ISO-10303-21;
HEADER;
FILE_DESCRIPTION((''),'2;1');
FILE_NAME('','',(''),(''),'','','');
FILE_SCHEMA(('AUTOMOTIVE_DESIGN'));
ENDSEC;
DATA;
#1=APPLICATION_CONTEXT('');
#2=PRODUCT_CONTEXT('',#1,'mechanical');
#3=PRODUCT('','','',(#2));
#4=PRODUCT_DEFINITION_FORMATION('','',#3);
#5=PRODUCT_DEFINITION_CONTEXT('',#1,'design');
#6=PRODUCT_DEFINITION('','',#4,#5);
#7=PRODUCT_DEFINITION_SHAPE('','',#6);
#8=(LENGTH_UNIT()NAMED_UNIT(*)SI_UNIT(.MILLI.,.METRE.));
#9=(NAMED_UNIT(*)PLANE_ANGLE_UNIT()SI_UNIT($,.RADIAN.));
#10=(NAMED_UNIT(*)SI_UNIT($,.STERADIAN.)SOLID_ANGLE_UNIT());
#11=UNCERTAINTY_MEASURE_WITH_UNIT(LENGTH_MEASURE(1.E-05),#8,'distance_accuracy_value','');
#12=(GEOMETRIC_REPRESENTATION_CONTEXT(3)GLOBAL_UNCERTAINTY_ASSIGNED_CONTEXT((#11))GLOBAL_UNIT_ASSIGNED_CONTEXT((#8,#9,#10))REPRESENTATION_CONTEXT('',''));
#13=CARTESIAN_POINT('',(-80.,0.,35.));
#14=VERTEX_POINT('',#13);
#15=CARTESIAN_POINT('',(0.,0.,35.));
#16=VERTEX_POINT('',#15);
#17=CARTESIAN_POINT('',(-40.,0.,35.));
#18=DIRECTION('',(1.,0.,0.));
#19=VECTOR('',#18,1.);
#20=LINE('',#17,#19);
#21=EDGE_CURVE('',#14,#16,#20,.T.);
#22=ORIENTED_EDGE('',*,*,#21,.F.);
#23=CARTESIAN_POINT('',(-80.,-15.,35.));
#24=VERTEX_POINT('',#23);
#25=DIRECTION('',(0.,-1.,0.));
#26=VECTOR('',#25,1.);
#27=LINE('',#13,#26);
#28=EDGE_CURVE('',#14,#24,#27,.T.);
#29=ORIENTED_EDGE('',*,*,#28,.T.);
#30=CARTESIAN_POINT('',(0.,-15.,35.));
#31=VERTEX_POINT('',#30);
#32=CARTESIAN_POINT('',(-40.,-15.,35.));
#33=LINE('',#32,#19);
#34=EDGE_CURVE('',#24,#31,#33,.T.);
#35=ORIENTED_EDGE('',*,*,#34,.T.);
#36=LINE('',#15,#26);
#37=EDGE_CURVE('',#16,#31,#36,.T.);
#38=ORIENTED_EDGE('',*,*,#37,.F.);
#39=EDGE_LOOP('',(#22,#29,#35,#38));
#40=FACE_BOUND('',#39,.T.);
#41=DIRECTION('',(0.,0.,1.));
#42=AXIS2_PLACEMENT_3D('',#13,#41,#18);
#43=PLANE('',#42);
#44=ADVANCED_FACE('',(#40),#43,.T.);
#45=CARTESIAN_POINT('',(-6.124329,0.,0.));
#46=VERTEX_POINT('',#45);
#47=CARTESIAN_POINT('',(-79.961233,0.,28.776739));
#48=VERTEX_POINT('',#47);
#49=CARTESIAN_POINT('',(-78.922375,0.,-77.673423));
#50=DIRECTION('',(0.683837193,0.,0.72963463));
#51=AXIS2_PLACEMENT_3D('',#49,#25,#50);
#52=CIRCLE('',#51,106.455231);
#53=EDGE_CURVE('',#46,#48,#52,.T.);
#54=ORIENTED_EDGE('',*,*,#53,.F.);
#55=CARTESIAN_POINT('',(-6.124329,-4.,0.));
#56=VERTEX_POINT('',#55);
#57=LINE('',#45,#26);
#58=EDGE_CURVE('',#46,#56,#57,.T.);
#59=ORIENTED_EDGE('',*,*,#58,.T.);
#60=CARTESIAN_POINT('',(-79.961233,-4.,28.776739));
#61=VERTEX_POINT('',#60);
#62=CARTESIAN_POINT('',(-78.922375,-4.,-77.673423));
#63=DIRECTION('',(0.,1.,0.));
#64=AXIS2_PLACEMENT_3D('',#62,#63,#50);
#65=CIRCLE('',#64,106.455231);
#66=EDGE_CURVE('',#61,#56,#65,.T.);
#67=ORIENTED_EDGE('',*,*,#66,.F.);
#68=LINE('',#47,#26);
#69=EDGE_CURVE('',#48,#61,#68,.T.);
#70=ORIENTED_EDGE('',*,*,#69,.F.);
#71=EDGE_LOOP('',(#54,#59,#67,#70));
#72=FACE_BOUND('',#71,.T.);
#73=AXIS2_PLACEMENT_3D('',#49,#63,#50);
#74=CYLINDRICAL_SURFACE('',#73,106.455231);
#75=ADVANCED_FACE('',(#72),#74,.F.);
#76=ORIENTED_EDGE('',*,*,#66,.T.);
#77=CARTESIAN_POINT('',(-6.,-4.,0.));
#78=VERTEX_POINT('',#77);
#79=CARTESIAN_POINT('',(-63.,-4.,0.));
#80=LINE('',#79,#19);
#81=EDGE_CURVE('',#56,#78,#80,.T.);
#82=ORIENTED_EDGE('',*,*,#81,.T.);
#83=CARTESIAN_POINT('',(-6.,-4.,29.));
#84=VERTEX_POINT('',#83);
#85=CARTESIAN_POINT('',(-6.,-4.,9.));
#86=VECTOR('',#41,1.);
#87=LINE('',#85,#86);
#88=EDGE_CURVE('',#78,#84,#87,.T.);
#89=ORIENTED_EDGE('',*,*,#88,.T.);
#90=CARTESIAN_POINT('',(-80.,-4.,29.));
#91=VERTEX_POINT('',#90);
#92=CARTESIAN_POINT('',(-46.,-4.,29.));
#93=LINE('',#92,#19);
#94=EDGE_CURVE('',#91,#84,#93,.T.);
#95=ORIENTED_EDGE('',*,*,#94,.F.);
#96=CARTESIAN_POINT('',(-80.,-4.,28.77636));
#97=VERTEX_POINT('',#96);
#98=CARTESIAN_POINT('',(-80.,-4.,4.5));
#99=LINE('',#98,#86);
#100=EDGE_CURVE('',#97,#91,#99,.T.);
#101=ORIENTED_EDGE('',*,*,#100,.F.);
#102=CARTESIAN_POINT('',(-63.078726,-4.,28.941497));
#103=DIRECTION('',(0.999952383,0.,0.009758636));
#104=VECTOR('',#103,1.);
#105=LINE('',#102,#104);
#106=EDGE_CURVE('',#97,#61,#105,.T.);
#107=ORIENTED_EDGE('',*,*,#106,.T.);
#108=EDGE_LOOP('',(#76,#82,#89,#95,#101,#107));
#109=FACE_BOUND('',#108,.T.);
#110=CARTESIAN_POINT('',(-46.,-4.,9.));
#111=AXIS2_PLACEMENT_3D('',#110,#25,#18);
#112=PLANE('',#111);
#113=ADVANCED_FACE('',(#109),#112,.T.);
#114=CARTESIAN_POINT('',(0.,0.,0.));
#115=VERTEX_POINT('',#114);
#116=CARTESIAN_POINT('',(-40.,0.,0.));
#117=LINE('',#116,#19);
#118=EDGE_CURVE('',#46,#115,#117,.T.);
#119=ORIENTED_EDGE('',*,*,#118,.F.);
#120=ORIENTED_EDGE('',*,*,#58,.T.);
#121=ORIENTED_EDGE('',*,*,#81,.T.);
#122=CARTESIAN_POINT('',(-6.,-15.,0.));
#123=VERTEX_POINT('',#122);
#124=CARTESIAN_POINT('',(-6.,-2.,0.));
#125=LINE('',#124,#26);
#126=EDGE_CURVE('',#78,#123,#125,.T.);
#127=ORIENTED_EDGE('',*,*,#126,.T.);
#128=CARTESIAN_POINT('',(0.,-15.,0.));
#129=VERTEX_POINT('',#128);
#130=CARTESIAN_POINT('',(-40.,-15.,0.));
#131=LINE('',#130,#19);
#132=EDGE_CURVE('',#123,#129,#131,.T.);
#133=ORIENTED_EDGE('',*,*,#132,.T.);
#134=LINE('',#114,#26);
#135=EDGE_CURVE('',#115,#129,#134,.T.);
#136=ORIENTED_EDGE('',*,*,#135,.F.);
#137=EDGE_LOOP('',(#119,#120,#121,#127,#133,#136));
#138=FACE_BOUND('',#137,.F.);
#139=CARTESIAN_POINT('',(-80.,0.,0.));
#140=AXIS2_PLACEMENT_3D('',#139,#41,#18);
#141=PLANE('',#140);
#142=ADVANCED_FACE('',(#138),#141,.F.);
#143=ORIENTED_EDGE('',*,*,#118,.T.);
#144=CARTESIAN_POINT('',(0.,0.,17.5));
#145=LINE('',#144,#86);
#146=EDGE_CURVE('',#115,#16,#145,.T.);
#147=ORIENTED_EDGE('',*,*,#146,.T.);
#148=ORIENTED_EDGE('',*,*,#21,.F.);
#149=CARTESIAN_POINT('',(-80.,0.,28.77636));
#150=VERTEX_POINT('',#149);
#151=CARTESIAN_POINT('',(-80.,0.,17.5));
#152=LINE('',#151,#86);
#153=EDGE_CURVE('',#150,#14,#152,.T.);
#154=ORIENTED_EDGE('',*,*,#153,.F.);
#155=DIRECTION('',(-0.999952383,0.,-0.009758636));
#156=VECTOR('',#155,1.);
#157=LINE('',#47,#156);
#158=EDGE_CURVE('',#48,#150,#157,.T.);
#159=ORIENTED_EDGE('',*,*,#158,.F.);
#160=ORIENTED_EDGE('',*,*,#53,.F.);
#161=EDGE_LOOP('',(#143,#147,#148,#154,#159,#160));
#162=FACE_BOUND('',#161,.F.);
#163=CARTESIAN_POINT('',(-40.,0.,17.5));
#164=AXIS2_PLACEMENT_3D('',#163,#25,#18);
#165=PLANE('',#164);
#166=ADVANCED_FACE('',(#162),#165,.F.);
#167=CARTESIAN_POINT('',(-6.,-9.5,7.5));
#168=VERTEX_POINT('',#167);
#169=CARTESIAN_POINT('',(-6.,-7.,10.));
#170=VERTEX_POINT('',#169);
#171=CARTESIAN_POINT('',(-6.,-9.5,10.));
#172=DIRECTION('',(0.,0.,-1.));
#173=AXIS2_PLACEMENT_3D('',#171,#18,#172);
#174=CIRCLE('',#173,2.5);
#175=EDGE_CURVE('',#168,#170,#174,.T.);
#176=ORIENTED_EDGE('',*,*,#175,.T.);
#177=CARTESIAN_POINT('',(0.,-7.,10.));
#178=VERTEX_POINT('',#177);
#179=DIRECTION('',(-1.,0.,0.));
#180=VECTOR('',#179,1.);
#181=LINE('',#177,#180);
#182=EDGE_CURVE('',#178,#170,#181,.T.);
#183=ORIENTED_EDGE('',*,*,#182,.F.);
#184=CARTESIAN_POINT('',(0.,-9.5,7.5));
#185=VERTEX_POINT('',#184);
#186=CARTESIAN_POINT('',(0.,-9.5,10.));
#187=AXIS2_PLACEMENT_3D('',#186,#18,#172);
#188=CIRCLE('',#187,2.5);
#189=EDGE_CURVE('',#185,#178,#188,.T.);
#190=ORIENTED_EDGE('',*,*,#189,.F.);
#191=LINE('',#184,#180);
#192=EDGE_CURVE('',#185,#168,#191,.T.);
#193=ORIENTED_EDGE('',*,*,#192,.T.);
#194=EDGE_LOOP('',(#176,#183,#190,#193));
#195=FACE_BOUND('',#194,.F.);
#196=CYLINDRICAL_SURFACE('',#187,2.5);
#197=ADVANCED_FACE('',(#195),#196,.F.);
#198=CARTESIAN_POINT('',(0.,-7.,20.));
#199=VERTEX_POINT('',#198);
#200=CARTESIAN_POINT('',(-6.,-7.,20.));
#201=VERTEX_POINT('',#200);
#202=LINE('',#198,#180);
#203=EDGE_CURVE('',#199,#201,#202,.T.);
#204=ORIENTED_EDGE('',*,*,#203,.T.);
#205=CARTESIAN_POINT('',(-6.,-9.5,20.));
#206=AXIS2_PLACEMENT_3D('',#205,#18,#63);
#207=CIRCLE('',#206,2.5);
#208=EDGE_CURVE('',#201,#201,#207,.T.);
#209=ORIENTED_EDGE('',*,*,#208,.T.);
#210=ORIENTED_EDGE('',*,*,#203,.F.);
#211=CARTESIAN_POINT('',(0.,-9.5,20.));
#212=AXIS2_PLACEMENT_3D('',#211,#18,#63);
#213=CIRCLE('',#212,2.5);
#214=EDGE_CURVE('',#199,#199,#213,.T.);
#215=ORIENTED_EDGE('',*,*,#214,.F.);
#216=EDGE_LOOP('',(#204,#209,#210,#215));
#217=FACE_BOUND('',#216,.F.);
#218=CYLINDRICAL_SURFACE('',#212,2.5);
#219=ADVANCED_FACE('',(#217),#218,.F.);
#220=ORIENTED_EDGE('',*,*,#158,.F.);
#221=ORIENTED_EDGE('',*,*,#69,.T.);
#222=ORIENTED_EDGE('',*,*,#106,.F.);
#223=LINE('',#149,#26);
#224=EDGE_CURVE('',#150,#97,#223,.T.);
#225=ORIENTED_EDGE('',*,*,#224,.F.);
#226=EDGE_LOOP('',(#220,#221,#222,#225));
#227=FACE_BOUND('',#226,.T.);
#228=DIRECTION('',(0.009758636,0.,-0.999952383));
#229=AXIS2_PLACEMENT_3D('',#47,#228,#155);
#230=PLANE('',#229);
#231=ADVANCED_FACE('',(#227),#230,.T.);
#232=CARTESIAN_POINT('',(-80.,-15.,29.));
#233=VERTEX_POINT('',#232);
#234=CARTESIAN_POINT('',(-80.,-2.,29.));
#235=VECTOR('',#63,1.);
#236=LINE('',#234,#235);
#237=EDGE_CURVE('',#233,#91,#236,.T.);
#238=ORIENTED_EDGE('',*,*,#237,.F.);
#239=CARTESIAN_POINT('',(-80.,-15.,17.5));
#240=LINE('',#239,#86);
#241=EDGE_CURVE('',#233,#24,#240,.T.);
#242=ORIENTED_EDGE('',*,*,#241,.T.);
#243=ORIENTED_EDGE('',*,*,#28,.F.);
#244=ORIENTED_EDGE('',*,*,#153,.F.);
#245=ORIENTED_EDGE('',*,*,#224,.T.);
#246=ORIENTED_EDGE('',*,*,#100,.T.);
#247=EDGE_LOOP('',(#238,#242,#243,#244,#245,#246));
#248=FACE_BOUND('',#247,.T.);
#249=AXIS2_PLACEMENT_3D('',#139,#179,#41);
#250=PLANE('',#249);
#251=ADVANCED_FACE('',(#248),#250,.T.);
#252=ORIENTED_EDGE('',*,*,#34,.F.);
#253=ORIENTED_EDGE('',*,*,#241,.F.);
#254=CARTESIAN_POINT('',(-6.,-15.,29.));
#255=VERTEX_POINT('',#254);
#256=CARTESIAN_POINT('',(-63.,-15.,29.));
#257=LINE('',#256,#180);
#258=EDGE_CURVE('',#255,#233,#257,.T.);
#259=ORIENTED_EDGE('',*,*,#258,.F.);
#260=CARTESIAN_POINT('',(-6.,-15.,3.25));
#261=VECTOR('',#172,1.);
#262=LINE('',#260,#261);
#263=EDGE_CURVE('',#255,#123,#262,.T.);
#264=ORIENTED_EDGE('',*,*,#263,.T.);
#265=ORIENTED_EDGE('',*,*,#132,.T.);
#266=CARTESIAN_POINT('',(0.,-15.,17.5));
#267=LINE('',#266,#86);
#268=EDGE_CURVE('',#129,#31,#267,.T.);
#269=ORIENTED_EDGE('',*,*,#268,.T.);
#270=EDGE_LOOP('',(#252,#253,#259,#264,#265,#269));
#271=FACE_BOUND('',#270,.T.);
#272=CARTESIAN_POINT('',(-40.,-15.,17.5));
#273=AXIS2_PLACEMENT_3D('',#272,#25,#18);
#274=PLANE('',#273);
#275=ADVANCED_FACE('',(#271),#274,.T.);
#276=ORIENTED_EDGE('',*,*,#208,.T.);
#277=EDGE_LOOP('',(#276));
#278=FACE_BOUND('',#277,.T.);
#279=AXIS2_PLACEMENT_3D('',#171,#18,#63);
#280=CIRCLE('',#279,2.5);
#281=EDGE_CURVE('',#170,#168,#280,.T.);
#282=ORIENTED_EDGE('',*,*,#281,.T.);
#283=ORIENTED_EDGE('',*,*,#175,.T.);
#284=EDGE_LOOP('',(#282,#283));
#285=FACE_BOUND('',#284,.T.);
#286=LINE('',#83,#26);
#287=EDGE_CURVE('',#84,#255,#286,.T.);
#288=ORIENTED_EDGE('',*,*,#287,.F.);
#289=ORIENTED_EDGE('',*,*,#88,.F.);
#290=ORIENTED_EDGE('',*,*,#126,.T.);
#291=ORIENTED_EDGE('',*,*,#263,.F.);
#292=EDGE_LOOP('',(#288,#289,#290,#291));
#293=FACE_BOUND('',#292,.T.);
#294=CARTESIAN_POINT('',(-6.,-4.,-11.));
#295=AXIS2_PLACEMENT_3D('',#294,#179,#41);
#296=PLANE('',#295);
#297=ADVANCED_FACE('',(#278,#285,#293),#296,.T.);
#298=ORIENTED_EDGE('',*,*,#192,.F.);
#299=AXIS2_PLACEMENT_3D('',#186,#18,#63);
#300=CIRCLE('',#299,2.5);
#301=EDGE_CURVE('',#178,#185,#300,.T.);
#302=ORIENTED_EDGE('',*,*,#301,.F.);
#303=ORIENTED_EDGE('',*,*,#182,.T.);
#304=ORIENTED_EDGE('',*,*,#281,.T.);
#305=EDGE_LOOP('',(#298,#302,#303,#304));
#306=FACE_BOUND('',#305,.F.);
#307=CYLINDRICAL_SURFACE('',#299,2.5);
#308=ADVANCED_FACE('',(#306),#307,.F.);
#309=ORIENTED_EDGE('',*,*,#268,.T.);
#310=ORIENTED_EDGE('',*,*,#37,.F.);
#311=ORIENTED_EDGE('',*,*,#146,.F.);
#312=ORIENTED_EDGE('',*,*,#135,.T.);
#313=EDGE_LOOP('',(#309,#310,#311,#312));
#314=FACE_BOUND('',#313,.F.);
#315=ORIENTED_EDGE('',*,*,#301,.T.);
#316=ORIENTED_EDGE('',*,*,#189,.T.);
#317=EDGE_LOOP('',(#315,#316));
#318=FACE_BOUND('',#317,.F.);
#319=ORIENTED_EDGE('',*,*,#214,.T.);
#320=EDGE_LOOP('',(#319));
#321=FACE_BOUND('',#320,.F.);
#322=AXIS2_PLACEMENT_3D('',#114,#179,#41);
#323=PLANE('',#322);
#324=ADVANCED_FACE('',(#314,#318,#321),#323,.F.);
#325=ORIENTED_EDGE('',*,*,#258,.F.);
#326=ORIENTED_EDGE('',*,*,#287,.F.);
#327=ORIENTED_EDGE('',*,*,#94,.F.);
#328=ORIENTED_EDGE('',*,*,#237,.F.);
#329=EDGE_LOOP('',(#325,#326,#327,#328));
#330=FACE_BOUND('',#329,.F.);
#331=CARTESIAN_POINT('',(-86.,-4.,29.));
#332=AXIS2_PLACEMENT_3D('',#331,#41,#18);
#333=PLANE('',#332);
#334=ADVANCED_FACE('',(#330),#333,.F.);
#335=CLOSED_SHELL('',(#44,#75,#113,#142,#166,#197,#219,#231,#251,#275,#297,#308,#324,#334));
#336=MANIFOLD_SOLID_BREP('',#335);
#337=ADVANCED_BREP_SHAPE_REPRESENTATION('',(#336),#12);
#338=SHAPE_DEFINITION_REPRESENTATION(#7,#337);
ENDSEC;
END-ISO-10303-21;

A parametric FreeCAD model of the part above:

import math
import FreeCAD as App
import Part
import Sketcher

doc = App.newDocument("Part")
body = doc.addObject("PartDesign::Body", "Body")

sketch1 = doc.addObject("Sketcher::SketchObject", "Sketch")
body.addObject(sketch1)
sketch1.AttachmentSupport = (doc.XZ_Plane, [""])
sketch1.MapMode = "FlatFace"
sketch1.addGeometry([
    Part.LineSegment(App.Vector(-80, 35, 0), App.Vector(-80, 0, 0)),
    Part.LineSegment(App.Vector(-80, 0, 0), App.Vector(0, 0, 0)),
    Part.LineSegment(App.Vector(0, 0, 0), App.Vector(0, 35, 0)),
    Part.LineSegment(App.Vector(0, 35, 0), App.Vector(-80, 35, 0)),
], False)
sketch1.addConstraint([
    Sketcher.Constraint("Coincident", 0, 2, 1, 1),
    Sketcher.Constraint("Coincident", 1, 2, 2, 1),
    Sketcher.Constraint("Coincident", 2, 2, 3, 1),
    Sketcher.Constraint("Coincident", 3, 2, 0, 1),
    Sketcher.Constraint("Vertical", 0),
    Sketcher.Constraint("Horizontal", 1),
    Sketcher.Constraint("Vertical", 2),
    Sketcher.Constraint("Horizontal", 3),
    Sketcher.Constraint("Coincident", 1, 2, -1, 1),
    Sketcher.Constraint("DistanceX", 1, 1, 1, 2, 80.0),
    Sketcher.Constraint("DistanceY", 0, 2, 0, 1, 35.0),
])
pad1 = doc.addObject("PartDesign::Pad", "Pad")
body.addObject(pad1)
pad1.Profile = sketch1
pad1.Length = 15

sketch2 = doc.addObject("Sketcher::SketchObject", "Sketch001")
body.addObject(sketch2)
sketch2.AttachmentSupport = (doc.XZ_Plane, [""])
sketch2.MapMode = "FlatFace"
sketch2.AttachmentOffset = App.Placement(App.Vector(0, 0, 4), App.Rotation())
sketch2.addGeometry([
    Part.LineSegment(App.Vector(-86, 29, 0), App.Vector(-86, -11, 0)),
    Part.LineSegment(App.Vector(-86, -11, 0), App.Vector(-6, -11, 0)),
    Part.LineSegment(App.Vector(-6, -11, 0), App.Vector(-6, 29, 0)),
    Part.LineSegment(App.Vector(-6, 29, 0), App.Vector(-86, 29, 0)),
], False)
sketch2.addConstraint([
    Sketcher.Constraint("Coincident", 0, 2, 1, 1),
    Sketcher.Constraint("Coincident", 1, 2, 2, 1),
    Sketcher.Constraint("Coincident", 2, 2, 3, 1),
    Sketcher.Constraint("Coincident", 3, 2, 0, 1),
    Sketcher.Constraint("Vertical", 0),
    Sketcher.Constraint("Horizontal", 1),
    Sketcher.Constraint("Vertical", 2),
    Sketcher.Constraint("Horizontal", 3),
    Sketcher.Constraint("DistanceX", 1, 1, 1, 2, 80.0),
    Sketcher.Constraint("DistanceY", 0, 2, 0, 1, 40.0),
    Sketcher.Constraint("DistanceX", 0, 2, -1, 1, 86.0),
    Sketcher.Constraint("DistanceY", 0, 2, -1, 1, 11.0),
])
pocket1 = doc.addObject("PartDesign::Pocket", "Pocket")
body.addObject(pocket1)
pocket1.Profile = sketch2
pocket1.Length = 21
pocket1.Reversed = True

sketch3 = doc.addObject("Sketcher::SketchObject", "Sketch002")
body.addObject(sketch3)
sketch3.AttachmentSupport = (doc.XZ_Plane, [""])
sketch3.MapMode = "FlatFace"
sketch3.addGeometry([
    Part.LineSegment(App.Vector(-6, -13, 0), App.Vector(-6, 0, 0)),
    Part.ArcOfCircle(Part.Circle(App.Vector(-79, -78, 0), App.Vector(0, 0, 1), 106), math.radians(47), math.radians(91)),
    Part.LineSegment(App.Vector(-80, 29, 0), App.Vector(-95, 29, 0)),
    Part.LineSegment(App.Vector(-95, 29, 0), App.Vector(-95, -13, 0)),
    Part.LineSegment(App.Vector(-95, -13, 0), App.Vector(-6, -13, 0)),
], False)
sketch3.addConstraint([
    Sketcher.Constraint("Coincident", 0, 2, 1, 1),
    Sketcher.Constraint("Tangent", 1, 2, 2, 1),
    Sketcher.Constraint("Coincident", 2, 2, 3, 1),
    Sketcher.Constraint("Coincident", 3, 2, 4, 1),
    Sketcher.Constraint("Coincident", 4, 2, 0, 1),
    Sketcher.Constraint("Vertical", 0),
    Sketcher.Constraint("Horizontal", 4),
    Sketcher.Constraint("PointOnObject", 0, 2, -1),
    Sketcher.Constraint("Perpendicular", 2, 3),
    Sketcher.Constraint("Radius", 1, 106.455231),
    Sketcher.Constraint("DistanceX", 2, 2, 1, 2, 15.167202),
    Sketcher.Constraint("DistanceX", 4, 1, 4, 2, 88.602615),
    Sketcher.Constraint("DistanceY", 0, 1, 0, 2, 12.511383),
    Sketcher.Constraint("DistanceX", 0, 2, -1, 1, 6.124329),
    Sketcher.Constraint("DistanceY", -1, 1, 1, 2, 28.776739),
])
pocket2 = doc.addObject("PartDesign::Pocket", "Pocket001")
body.addObject(pocket2)
pocket2.Profile = sketch3
pocket2.Type = "ThroughAll"
pocket2.Midplane = True

sketch4 = doc.addObject("Sketcher::SketchObject", "Sketch003")
body.addObject(sketch4)
sketch4.AttachmentSupport = (doc.YZ_Plane, [""])
sketch4.MapMode = "FlatFace"
sketch4.addGeometry([
    Part.Circle(App.Vector(-9.5, 20, 0), App.Vector(0, 0, 1), 2.5),
    Part.ArcOfCircle(Part.Circle(App.Vector(-9.5, 10, 0), App.Vector(0, 0, 1), 2.5), math.radians(-90), math.radians(0)),
    Part.ArcOfCircle(Part.Circle(App.Vector(-9.5, 10, 0), App.Vector(0, 0, 1), 2.5), math.radians(0), math.radians(270)),
], False)
sketch4.addConstraint([
    Sketcher.Constraint("Tangent", 1, 1, 2, 2),
    Sketcher.Constraint("Coincident", 2, 1, 1, 2),
    Sketcher.Constraint("Equal", 0, 1),
    Sketcher.Constraint("Horizontal", 1, 3, 2, 1),
    Sketcher.Constraint("Vertical", 0, 3, 1, 3),
    Sketcher.Constraint("Vertical", 2, 3, 1, 1),
    Sketcher.Constraint("Diameter", 0, 5.0),
    Sketcher.Constraint("DistanceY", -1, 1, 0, 3, 20.0),
    Sketcher.Constraint("DistanceY", -1, 1, 1, 3, 10.0),
    Sketcher.Constraint("DistanceX", 2, 1, -1, 1, 7.0),
])
pocket3 = doc.addObject("PartDesign::Pocket", "Pocket002")
body.addObject(pocket3)
pocket3.Profile = sketch4
pocket3.Type = "ThroughAll"
pocket3.Midplane = True

doc.recompute()
